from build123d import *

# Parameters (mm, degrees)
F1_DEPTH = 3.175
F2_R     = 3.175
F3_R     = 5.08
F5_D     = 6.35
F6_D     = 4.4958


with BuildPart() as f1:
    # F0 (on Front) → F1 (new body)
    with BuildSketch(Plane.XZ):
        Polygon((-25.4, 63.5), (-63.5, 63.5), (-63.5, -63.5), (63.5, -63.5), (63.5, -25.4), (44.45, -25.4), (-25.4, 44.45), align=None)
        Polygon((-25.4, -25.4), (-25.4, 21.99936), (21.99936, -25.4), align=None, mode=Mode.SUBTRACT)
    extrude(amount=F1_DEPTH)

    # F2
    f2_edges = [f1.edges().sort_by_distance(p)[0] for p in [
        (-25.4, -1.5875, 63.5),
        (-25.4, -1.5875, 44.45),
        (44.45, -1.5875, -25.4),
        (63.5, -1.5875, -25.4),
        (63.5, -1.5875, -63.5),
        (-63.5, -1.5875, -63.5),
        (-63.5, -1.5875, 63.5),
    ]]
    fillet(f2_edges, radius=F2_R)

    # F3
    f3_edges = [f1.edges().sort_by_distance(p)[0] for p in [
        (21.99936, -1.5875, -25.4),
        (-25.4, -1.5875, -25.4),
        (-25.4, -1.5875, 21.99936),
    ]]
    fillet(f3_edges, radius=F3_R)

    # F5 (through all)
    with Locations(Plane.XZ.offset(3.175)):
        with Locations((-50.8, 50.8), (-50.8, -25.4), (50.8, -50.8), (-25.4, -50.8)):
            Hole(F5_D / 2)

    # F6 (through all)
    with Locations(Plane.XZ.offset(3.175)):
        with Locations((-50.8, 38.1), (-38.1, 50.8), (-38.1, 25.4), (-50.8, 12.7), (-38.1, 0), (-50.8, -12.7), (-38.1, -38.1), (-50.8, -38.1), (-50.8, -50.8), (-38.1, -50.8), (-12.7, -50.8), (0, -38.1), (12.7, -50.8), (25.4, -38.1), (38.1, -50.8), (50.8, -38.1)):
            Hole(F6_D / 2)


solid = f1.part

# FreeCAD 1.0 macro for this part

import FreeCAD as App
import Part
import Sketcher

V = App.Vector
Q = App.Units.Quantity


def edges_at(feature, points):
    """Names of the edges that pass closest to the given points."""
    edges = feature.Shape.Edges
    near = lambda p: min(range(len(edges)), key=lambda i: edges[i].distToShape(Part.Vertex(*p))[0])
    return sorted({f"Edge{near(p) + 1}" for p in points})


def add_polygon(sketch, points):
    """Adds a closed chain of lines whose ends are joined by coincident constraints."""
    first, n = sketch.GeometryCount, len(points)
    for a, b in zip(points, points[1:] + points[:1]):
        sketch.addGeometry(Part.LineSegment(App.Vector(*a, 0), App.Vector(*b, 0)), False)
    for i in range(n):
        sketch.addConstraint(Sketcher.Constraint("Coincident", first + i, 2, first + (i + 1) % n, 1))

doc = App.newDocument("Part")
body = doc.addObject("PartDesign::Body", "Body")

# Sketch on XZ plane
sketch1 = doc.addObject("Sketcher::SketchObject", "Sketch")
body.addObject(sketch1)
sketch1.AttachmentSupport = (doc.XZ_Plane, [""])
sketch1.MapMode = "FlatFace"
add_polygon(sketch1, [(-25, 64), (-64, 64), (-64, -64), (64, -64), (64, -25), (44, -25), (-25, 44)])  # lines 0-6
add_polygon(sketch1, [(22, -25), (-25, -25), (-25, 22)])  # lines 7-9
sketch1.addConstraint([
    Sketcher.Constraint("Horizontal", 0),
    Sketcher.Constraint("Vertical", 1),
    Sketcher.Constraint("Horizontal", 2),
    Sketcher.Constraint("Vertical", 3),
    Sketcher.Constraint("Horizontal", 4),
    Sketcher.Constraint("Vertical", 6),
    Sketcher.Constraint("Horizontal", 7),
    Sketcher.Constraint("Vertical", 8),
    Sketcher.Constraint("Symmetric", 0, 2, 2, 2, -1, 1),
    Sketcher.Constraint("Parallel", 5, 9),
    Sketcher.Constraint("Horizontal", 4, 2, 7, 2),
    Sketcher.Constraint("Vertical", 6, 2, 7, 2),
    Sketcher.Constraint("Equal", 2, 1),
    Sketcher.Constraint("Equal", 0, 3),
    Sketcher.Constraint("Equal", 4, 6),
    Sketcher.Constraint("DistanceX", 2, 1, 2, 2, Q("5 in")),
    Sketcher.Constraint("DistanceX", 0, 2, 0, 1, Q("1.5 in")),
    Sketcher.Constraint("DistanceX", 4, 2, 4, 1, Q("0.75 in")),
    Sketcher.Constraint("DistanceX", 7, 2, 7, 1, Q("47.39936 mm")),
])
pad1 = doc.addObject("PartDesign::Pad", "Pad")
body.addObject(pad1)
pad1.Profile = sketch1
pad1.Length = Q("0.125 in")
doc.recompute()

fillet = doc.addObject("PartDesign::Fillet", "Fillet")
body.addObject(fillet)
fillet.Base = (pad1, edges_at(pad1, [
    (-25.4, -1.587, 63.5),
    (-25.4, -1.587, 44.45),
    (44.45, -1.587, -25.4),
    (63.5, -1.587, -25.4),
    (63.5, -1.587, -63.5),
    (-63.5, -1.587, -63.5),
    (-63.5, -1.587, 63.5),
]))
fillet.Radius = Q("0.125 in")
doc.recompute()

fillet2 = doc.addObject("PartDesign::Fillet", "Fillet001")
body.addObject(fillet2)
fillet2.Base = (fillet, edges_at(fillet, [(21.999, -1.587, -25.4), (-25.4, -1.587, -25.4), (-25.4, -1.587, 21.999)]))
fillet2.Radius = Q("0.2 in")

# Sketch on XZ plane
sketch2 = doc.addObject("Sketcher::SketchObject", "Sketch001")
body.addObject(sketch2)
sketch2.AttachmentSupport = (doc.XZ_Plane, [""])
sketch2.MapMode = "FlatFace"
sketch2.AttachmentOffset = App.Placement(V(0, 0, 0.125 * 25.4), App.Rotation())
sketch2.addGeometry([
    Part.Circle(V(-50.8, 50.8, 0), V(0, 0, 1), 3.2),
    Part.Circle(V(-50.8, -25.4, 0), V(0, 0, 1), 3.2),
    Part.Circle(V(50.8, -50.8, 0), V(0, 0, 1), 3.2),
    Part.Circle(V(-25.4, -50.8, 0), V(0, 0, 1), 3.2),
], False)
sketch2.addConstraint([
    Sketcher.Constraint("Equal", 0, 1),
    Sketcher.Constraint("Equal", 1, 2),
    Sketcher.Constraint("Equal", 2, 3),
    Sketcher.Constraint("Symmetric", 0, 3, 2, 3, -1, 1),
    Sketcher.Constraint("Horizontal", 2, 3, 3, 3),
    Sketcher.Constraint("Vertical", 0, 3, 1, 3),
    Sketcher.Constraint("Diameter", 0, Q("0.25 in")),
    Sketcher.Constraint("DistanceX", 0, 3, -1, 1, Q("2 in")),
    Sketcher.Constraint("DistanceY", -1, 1, 0, 3, Q("2 in")),
    Sketcher.Constraint("DistanceY", 1, 3, -1, 1, Q("1 in")),
    Sketcher.Constraint("DistanceX", 3, 3, -1, 1, Q("1 in")),
])
doc.recompute()
hole = doc.addObject("PartDesign::Hole", "Hole")
body.addObject(hole)
hole.Profile = sketch2
hole.ThreadType = "None"
hole.Diameter = Q("0.25 in")
hole.DepthType = "ThroughAll"

# Sketch on XZ plane
sketch3 = doc.addObject("Sketcher::SketchObject", "Sketch002")
body.addObject(sketch3)
sketch3.AttachmentSupport = (doc.XZ_Plane, [""])
sketch3.MapMode = "FlatFace"
sketch3.AttachmentOffset = App.Placement(V(0, 0, 0.125 * 25.4), App.Rotation())
sketch3.addGeometry([
    Part.Circle(V(-50.8, 38.1, 0), V(0, 0, 1), 2.2),  # 0
    Part.Circle(V(-38.1, 50.8, 0), V(0, 0, 1), 2.2),  # 1
    Part.Circle(V(-38.1, 25.4, 0), V(0, 0, 1), 2.2),  # 2
    Part.Circle(V(-50.8, 12.7, 0), V(0, 0, 1), 2.2),  # 3
    Part.Circle(V(-38.1, 0, 0), V(0, 0, 1), 2.2),  # 4
    Part.Circle(V(-50.8, -12.7, 0), V(0, 0, 1), 2.2),  # 5
    Part.Circle(V(-38.1, -38.1, 0), V(0, 0, 1), 2.2),  # 6
    Part.Circle(V(-50.8, -38.1, 0), V(0, 0, 1), 2.2),  # 7
    Part.Circle(V(-50.8, -50.8, 0), V(0, 0, 1), 2.2),  # 8
    Part.Circle(V(-38.1, -50.8, 0), V(0, 0, 1), 2.2),  # 9
    Part.Circle(V(-12.7, -50.8, 0), V(0, 0, 1), 2.2),  # 10
    Part.Circle(V(0, -38.1, 0), V(0, 0, 1), 2.2),  # 11
    Part.Circle(V(12.7, -50.8, 0), V(0, 0, 1), 2.2),  # 12
    Part.Circle(V(25.4, -38.1, 0), V(0, 0, 1), 2.2),  # 13
    Part.Circle(V(38.1, -50.8, 0), V(0, 0, 1), 2.2),  # 14
    Part.Circle(V(50.8, -38.1, 0), V(0, 0, 1), 2.2),  # 15
], False)
sketch3.addConstraint([
    Sketcher.Constraint("Equal", 0, 1),
    Sketcher.Constraint("Equal", 1, 2),
    Sketcher.Constraint("Equal", 2, 3),
    Sketcher.Constraint("Equal", 3, 4),
    Sketcher.Constraint("Equal", 4, 5),
    Sketcher.Constraint("Equal", 5, 6),
    Sketcher.Constraint("Equal", 6, 7),
    Sketcher.Constraint("Equal", 7, 8),
    Sketcher.Constraint("Equal", 8, 9),
    Sketcher.Constraint("Equal", 9, 10),
    Sketcher.Constraint("Equal", 10, 11),
    Sketcher.Constraint("Equal", 11, 12),
    Sketcher.Constraint("Equal", 12, 13),
    Sketcher.Constraint("Equal", 13, 14),
    Sketcher.Constraint("Equal", 14, 15),
    Sketcher.Constraint("Symmetric", 1, 3, 14, 3, -1, 1),
    Sketcher.Constraint("Symmetric", 0, 3, 15, 3, -1, 1),
    Sketcher.Constraint("Symmetric", 10, 3, 12, 3, -2),
    Sketcher.Constraint("Symmetric", 9, 3, 14, 3, -2),
    Sketcher.Constraint("Symmetric", 7, 3, 15, 3, -2),
    Sketcher.Constraint("Symmetric", 3, 3, 5, 3, -1),
    Sketcher.Constraint("PointOnObject", 4, 3, -1),
    Sketcher.Constraint("PointOnObject", 11, 3, -2),
    Sketcher.Constraint("Horizontal", 6, 3, 7, 3),
    Sketcher.Constraint("Horizontal", 8, 3, 9, 3),
    Sketcher.Constraint("Horizontal", 9, 3, 10, 3),
    Sketcher.Constraint("Horizontal", 7, 3, 11, 3),
    Sketcher.Constraint("Horizontal", 11, 3, 13, 3),
    Sketcher.Constraint("Vertical", 1, 3, 2, 3),
    Sketcher.Constraint("Vertical", 0, 3, 3, 3),
    Sketcher.Constraint("Vertical", 2, 3, 4, 3),
    Sketcher.Constraint("Vertical", 4, 3, 6, 3),
    Sketcher.Constraint("Vertical", 7, 3, 8, 3),
    Sketcher.Constraint("Diameter", 0, Q("0.177 in")),
    Sketcher.Constraint("DistanceX", 0, 3, -1, 1, Q("2 in")),
    Sketcher.Constraint("DistanceY", -1, 1, 1, 3, Q("2 in")),
    Sketcher.Constraint("DistanceY", -1, 1, 2, 3, Q("1 in")),
    Sketcher.Constraint("DistanceX", -1, 1, 13, 3, Q("1 in")),
    Sketcher.Constraint("DistanceY", 3, 3, 0, 3, Q("1 in")),
    Sketcher.Constraint("DistanceY", 5, 3, 3, 3, Q("1 in")),
    Sketcher.Constraint("DistanceX", 9, 3, 10, 3, Q("1 in")),
    Sketcher.Constraint("DistanceX", 10, 3, 12, 3, Q("1 in")),
])
doc.recompute()
hole2 = doc.addObject("PartDesign::Hole", "Hole001")
body.addObject(hole2)
hole2.Profile = sketch3
hole2.ThreadType = "None"
hole2.Diameter = Q("0.177 in")
hole2.DepthType = "ThroughAll"

doc.recompute()
